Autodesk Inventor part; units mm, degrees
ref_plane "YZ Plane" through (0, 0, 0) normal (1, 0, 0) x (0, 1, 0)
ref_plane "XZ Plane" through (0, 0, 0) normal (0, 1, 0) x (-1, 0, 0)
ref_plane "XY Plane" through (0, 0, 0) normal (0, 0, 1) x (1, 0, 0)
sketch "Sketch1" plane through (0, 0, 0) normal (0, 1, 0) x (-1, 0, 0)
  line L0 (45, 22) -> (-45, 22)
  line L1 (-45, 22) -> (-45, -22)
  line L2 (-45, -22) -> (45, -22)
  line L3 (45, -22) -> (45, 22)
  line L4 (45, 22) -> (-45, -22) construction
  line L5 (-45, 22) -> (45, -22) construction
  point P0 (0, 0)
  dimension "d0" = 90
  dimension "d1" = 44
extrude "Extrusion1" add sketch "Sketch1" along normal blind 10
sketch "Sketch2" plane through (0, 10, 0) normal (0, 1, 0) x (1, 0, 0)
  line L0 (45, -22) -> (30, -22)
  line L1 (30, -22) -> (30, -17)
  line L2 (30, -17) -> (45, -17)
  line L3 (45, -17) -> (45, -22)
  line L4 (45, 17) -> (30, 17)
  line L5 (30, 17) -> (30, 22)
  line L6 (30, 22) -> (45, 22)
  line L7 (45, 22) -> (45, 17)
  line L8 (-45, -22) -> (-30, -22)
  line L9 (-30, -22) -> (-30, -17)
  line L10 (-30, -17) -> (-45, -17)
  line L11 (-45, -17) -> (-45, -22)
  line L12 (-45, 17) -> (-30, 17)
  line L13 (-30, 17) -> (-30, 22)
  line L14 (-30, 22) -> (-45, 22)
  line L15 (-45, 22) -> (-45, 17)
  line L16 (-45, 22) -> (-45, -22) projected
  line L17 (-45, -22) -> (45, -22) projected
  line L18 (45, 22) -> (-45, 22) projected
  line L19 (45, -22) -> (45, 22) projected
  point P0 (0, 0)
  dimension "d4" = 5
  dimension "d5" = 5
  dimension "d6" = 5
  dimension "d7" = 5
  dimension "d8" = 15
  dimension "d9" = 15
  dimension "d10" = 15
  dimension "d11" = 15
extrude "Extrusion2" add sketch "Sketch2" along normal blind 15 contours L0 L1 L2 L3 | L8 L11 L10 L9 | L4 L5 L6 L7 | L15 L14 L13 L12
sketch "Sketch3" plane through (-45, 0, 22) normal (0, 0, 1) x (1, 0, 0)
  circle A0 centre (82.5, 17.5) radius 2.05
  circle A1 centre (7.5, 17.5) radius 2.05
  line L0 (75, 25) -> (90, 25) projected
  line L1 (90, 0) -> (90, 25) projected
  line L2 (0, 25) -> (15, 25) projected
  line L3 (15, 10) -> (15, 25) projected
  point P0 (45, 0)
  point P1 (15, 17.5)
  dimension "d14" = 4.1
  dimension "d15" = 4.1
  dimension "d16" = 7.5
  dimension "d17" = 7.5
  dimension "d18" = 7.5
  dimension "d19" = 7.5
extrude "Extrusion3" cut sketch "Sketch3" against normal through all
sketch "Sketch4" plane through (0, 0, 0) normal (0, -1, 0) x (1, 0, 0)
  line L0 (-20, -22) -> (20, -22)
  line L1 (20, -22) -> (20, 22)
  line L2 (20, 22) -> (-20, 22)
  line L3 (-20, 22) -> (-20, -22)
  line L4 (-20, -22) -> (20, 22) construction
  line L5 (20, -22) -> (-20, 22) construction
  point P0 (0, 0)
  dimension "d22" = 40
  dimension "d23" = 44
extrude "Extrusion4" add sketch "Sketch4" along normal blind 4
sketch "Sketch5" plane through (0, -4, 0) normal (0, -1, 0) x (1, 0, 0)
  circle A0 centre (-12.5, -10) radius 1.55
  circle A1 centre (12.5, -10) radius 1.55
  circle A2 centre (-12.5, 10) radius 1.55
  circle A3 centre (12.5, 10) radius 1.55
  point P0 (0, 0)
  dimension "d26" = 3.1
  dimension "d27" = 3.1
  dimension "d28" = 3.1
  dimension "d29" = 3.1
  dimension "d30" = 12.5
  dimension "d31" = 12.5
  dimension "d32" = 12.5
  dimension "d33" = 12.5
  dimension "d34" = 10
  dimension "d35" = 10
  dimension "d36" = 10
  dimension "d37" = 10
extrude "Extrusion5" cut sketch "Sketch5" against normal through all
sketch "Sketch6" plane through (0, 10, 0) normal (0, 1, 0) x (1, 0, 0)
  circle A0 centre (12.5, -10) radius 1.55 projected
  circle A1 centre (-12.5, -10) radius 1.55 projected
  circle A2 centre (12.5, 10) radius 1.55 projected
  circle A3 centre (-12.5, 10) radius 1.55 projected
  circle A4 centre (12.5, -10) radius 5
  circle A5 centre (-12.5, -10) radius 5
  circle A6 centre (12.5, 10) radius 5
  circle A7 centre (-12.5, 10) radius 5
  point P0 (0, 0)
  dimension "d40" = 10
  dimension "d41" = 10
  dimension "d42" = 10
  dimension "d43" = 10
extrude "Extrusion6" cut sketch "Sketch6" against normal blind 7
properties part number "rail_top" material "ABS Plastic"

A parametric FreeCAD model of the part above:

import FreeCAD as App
import Part
import Sketcher


def add_polygon(sketch, points):
    """Adds a closed chain of lines whose ends are joined by coincident constraints."""
    first, n = sketch.GeometryCount, len(points)
    for a, b in zip(points, points[1:] + points[:1]):
        sketch.addGeometry(Part.LineSegment(App.Vector(*a, 0), App.Vector(*b, 0)), False)
    for i in range(n):
        sketch.addConstraint(Sketcher.Constraint("Coincident", first + i, 2, first + (i + 1) % n, 1))

doc = App.newDocument("Part")
body = doc.addObject("PartDesign::Body", "Body")

sketch1 = doc.addObject("Sketcher::SketchObject", "Sketch")
body.addObject(sketch1)
sketch1.AttachmentSupport = (doc.XZ_Plane, [""])
sketch1.MapMode = "FlatFace"
add_polygon(sketch1, [(-45, -22), (-45, 22), (45, 22), (45, -22)])
sketch1.addConstraint([
    Sketcher.Constraint("Vertical", 0),
    Sketcher.Constraint("Horizontal", 1),
    Sketcher.Constraint("Vertical", 2),
    Sketcher.Constraint("Horizontal", 3),
    Sketcher.Constraint("Symmetric", 0, 2, 2, 2, -1, 1),
    Sketcher.Constraint("DistanceX", 1, 1, 1, 2, 90.0),
    Sketcher.Constraint("DistanceY", 0, 1, 0, 2, 44.0),
])
pad1 = doc.addObject("PartDesign::Pad", "Pad")
body.addObject(pad1)
pad1.Profile = sketch1
pad1.Length = 10
pad1.Reversed = True

sketch2 = doc.addObject("Sketcher::SketchObject", "Sketch001")
body.addObject(sketch2)
sketch2.AttachmentSupport = (doc.XZ_Plane, [""])
sketch2.MapMode = "FlatFace"
sketch2.AttachmentOffset = App.Placement(App.Vector(0, 0, -10), App.Rotation())
add_polygon(sketch2, [(30, 22), (45, 22), (45, 17), (30, 17)])
add_polygon(sketch2, [(-45, 22), (-30, 22), (-30, 17), (-45, 17)])
add_polygon(sketch2, [(30, -17), (45, -17), (45, -22), (30, -22)])
add_polygon(sketch2, [(-45, -22), (-45, -17), (-30, -17), (-30, -22)])
sketch2.addConstraint([
    Sketcher.Constraint("Horizontal", 0),
    Sketcher.Constraint("Vertical", 1),
    Sketcher.Constraint("Horizontal", 2),
    Sketcher.Constraint("Vertical", 3),
    Sketcher.Constraint("Horizontal", 4),
    Sketcher.Constraint("Vertical", 5),
    Sketcher.Constraint("Horizontal", 6),
    Sketcher.Constraint("Vertical", 7),
    Sketcher.Constraint("Horizontal", 8),
    Sketcher.Constraint("Vertical", 9),
    Sketcher.Constraint("Horizontal", 10),
    Sketcher.Constraint("Vertical", 11),
    Sketcher.Constraint("Vertical", 12),
    Sketcher.Constraint("Horizontal", 13),
    Sketcher.Constraint("Vertical", 14),
    Sketcher.Constraint("Horizontal", 15),
    Sketcher.Constraint("Symmetric", 6, 2, 8, 2, -1, 1),
    Sketcher.Constraint("Symmetric", 4, 2, 10, 2, -1, 1),
    Sketcher.Constraint("Symmetric", 1, 2, 12, 2, -1, 1),
    Sketcher.Constraint("Symmetric", 3, 2, 14, 2, -1, 1),
    Sketcher.Constraint("Symmetric", 3, 2, 4, 2, -2),
    Sketcher.Constraint("Symmetric", 1, 2, 6, 2, -2),
    Sketcher.Constraint("DistanceX", 0, 1, 0, 2, 15.0),
    Sketcher.Constraint("DistanceY", 1, 2, 1, 1, 5.0),
    Sketcher.Constraint("DistanceX", -1, 1, 0, 2, 45.0),
    Sketcher.Constraint("DistanceY", -1, 1, 0, 2, 22.0),
])
pad2 = doc.addObject("PartDesign::Pad", "Pad001")
body.addObject(pad2)
pad2.Profile = sketch2
pad2.Length = 15
pad2.Reversed = True

sketch3 = doc.addObject("Sketcher::SketchObject", "Sketch002")
body.addObject(sketch3)
sketch3.AttachmentSupport = (doc.XY_Plane, [""])
sketch3.MapMode = "FlatFace"
sketch3.AttachmentOffset = App.Placement(App.Vector(0, 0, 22), App.Rotation())
sketch3.addGeometry([
    Part.Circle(App.Vector(37.5, 17.5, 0), App.Vector(0, 0, 1), 2.05),
    Part.Circle(App.Vector(-37.5, 17.5, 0), App.Vector(0, 0, 1), 2.05),
], False)
sketch3.addConstraint([
    Sketcher.Constraint("Equal", 0, 1),
    Sketcher.Constraint("Symmetric", 0, 3, 1, 3, -2),
    Sketcher.Constraint("Diameter", 0, 4.1),
    Sketcher.Constraint("DistanceX", 1, 3, 0, 3, 75.0),
    Sketcher.Constraint("DistanceY", -1, 1, 0, 3, 17.5),
])
pocket1 = doc.addObject("PartDesign::Pocket", "Pocket")
body.addObject(pocket1)
pocket1.Profile = sketch3
pocket1.Type = "ThroughAll"

sketch4 = doc.addObject("Sketcher::SketchObject", "Sketch003")
body.addObject(sketch4)
sketch4.AttachmentSupport = (doc.XZ_Plane, [""])
sketch4.MapMode = "FlatFace"
add_polygon(sketch4, [(-20, 22), (-20, -22), (20, -22), (20, 22)])
sketch4.addConstraint([
    Sketcher.Constraint("Vertical", 0),
    Sketcher.Constraint("Horizontal", 1),
    Sketcher.Constraint("Vertical", 2),
    Sketcher.Constraint("Horizontal", 3),
    Sketcher.Constraint("Symmetric", 0, 2, 2, 2, -1, 1),
    Sketcher.Constraint("DistanceX", 1, 1, 1, 2, 40.0),
    Sketcher.Constraint("DistanceY", 0, 2, 0, 1, 44.0),
])
pad3 = doc.addObject("PartDesign::Pad", "Pad002")
body.addObject(pad3)
pad3.Profile = sketch4
pad3.Length = 4

sketch5 = doc.addObject("Sketcher::SketchObject", "Sketch004")
body.addObject(sketch5)
sketch5.AttachmentSupport = (doc.XZ_Plane, [""])
sketch5.MapMode = "FlatFace"
sketch5.AttachmentOffset = App.Placement(App.Vector(0, 0, 4), App.Rotation())
sketch5.addGeometry([
    Part.Circle(App.Vector(-12.5, -10, 0), App.Vector(0, 0, 1), 1.55),
    Part.Circle(App.Vector(12.5, -10, 0), App.Vector(0, 0, 1), 1.55),
    Part.Circle(App.Vector(-12.5, 10, 0), App.Vector(0, 0, 1), 1.55),
    Part.Circle(App.Vector(12.5, 10, 0), App.Vector(0, 0, 1), 1.55),
], False)
sketch5.addConstraint([
    Sketcher.Constraint("Equal", 0, 1),
    Sketcher.Constraint("Equal", 1, 2),
    Sketcher.Constraint("Equal", 2, 3),
    Sketcher.Constraint("Symmetric", 1, 3, 2, 3, -1, 1),
    Sketcher.Constraint("Symmetric", 0, 3, 3, 3, -1, 1),
    Sketcher.Constraint("Symmetric", 0, 3, 1, 3, -2),
    Sketcher.Constraint("Diameter", 0, 3.1),
    Sketcher.Constraint("DistanceY", 0, 3, -1, 1, 10.0),
    Sketcher.Constraint("DistanceX", 0, 3, -1, 1, 12.5),
])
pocket2 = doc.addObject("PartDesign::Pocket", "Pocket001")
body.addObject(pocket2)
pocket2.Profile = sketch5
pocket2.Type = "ThroughAll"

sketch6 = doc.addObject("Sketcher::SketchObject", "Sketch005")
body.addObject(sketch6)
sketch6.AttachmentSupport = (doc.XZ_Plane, [""])
sketch6.MapMode = "FlatFace"
sketch6.AttachmentOffset = App.Placement(App.Vector(0, 0, -10), App.Rotation())
sketch6.addGeometry([
    Part.Circle(App.Vector(12.5, 10, 0), App.Vector(0, 0, 1), 5),
    Part.Circle(App.Vector(12.5, 10, 0), App.Vector(0, 0, 1), 1.55),
    Part.Circle(App.Vector(-12.5, 10, 0), App.Vector(0, 0, 1), 5),
    Part.Circle(App.Vector(-12.5, 10, 0), App.Vector(0, 0, 1), 1.55),
    Part.Circle(App.Vector(12.5, -10, 0), App.Vector(0, 0, 1), 5),
    Part.Circle(App.Vector(12.5, -10, 0), App.Vector(0, 0, 1), 1.55),
    Part.Circle(App.Vector(-12.5, -10, 0), App.Vector(0, 0, 1), 5),
    Part.Circle(App.Vector(-12.5, -10, 0), App.Vector(0, 0, 1), 1.55),
], False)
sketch6.addConstraint([
    Sketcher.Constraint("Coincident", 1, 3, 0, 3),
    Sketcher.Constraint("Coincident", 3, 3, 2, 3),
    Sketcher.Constraint("Coincident", 5, 3, 4, 3),
    Sketcher.Constraint("Coincident", 7, 3, 6, 3),
    Sketcher.Constraint("Equal", 0, 2),
    Sketcher.Constraint("Equal", 1, 3),
    Sketcher.Constraint("Equal", 2, 4),
    Sketcher.Constraint("Equal", 3, 5),
    Sketcher.Constraint("Equal", 4, 6),
    Sketcher.Constraint("Equal", 5, 7),
    Sketcher.Constraint("Symmetric", 2, 3, 4, 3, -1, 1),
    Sketcher.Constraint("Symmetric", 0, 3, 6, 3, -1, 1),
    Sketcher.Constraint("Symmetric", 0, 3, 2, 3, -2),
    Sketcher.Constraint("Diameter", 0, 10.0),
    Sketcher.Constraint("DistanceY", -1, 1, 0, 3, 10.0),
    Sketcher.Constraint("Diameter", 1, 3.1),
    Sketcher.Constraint("DistanceX", 2, 3, 0, 3, 25.0),
])
pocket3 = doc.addObject("PartDesign::Pocket", "Pocket002")
body.addObject(pocket3)
pocket3.Profile = sketch6
pocket3.Length = 7
pocket3.Reversed = True

doc.recompute()
